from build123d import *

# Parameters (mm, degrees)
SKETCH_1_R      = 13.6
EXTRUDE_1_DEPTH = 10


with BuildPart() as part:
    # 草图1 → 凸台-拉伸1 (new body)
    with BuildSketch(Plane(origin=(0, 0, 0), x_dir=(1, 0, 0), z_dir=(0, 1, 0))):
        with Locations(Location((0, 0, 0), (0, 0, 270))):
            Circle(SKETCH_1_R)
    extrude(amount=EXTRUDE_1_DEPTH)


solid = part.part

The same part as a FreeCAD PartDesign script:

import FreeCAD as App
import Part
import Sketcher

V = App.Vector
Q = App.Units.Quantity

doc = App.newDocument("Part")
body = doc.addObject("PartDesign::Body", "Body")

# Sketch on XZ plane
sketch1 = body.newObject("Sketcher::SketchObject", "Sketch")
sketch1.AttachmentSupport = (doc.getObject("XZ_Plane"), [""])
sketch1.MapMode = "FlatFace"
sketch1.addGeometry(Part.Circle(V(0, 0, 0), V(0, 0, 1), 14), False)
sketch1.addConstraint([
    Sketcher.Constraint("Coincident", 0, 3, -1, 1),
    Sketcher.Constraint("Diameter", 0, Q("27.2 mm")),
])
pad1 = body.newObject("PartDesign::Pad", "Pad")
pad1.Profile = sketch1
pad1.Length = 10
pad1.Reversed = True

doc.recompute()
